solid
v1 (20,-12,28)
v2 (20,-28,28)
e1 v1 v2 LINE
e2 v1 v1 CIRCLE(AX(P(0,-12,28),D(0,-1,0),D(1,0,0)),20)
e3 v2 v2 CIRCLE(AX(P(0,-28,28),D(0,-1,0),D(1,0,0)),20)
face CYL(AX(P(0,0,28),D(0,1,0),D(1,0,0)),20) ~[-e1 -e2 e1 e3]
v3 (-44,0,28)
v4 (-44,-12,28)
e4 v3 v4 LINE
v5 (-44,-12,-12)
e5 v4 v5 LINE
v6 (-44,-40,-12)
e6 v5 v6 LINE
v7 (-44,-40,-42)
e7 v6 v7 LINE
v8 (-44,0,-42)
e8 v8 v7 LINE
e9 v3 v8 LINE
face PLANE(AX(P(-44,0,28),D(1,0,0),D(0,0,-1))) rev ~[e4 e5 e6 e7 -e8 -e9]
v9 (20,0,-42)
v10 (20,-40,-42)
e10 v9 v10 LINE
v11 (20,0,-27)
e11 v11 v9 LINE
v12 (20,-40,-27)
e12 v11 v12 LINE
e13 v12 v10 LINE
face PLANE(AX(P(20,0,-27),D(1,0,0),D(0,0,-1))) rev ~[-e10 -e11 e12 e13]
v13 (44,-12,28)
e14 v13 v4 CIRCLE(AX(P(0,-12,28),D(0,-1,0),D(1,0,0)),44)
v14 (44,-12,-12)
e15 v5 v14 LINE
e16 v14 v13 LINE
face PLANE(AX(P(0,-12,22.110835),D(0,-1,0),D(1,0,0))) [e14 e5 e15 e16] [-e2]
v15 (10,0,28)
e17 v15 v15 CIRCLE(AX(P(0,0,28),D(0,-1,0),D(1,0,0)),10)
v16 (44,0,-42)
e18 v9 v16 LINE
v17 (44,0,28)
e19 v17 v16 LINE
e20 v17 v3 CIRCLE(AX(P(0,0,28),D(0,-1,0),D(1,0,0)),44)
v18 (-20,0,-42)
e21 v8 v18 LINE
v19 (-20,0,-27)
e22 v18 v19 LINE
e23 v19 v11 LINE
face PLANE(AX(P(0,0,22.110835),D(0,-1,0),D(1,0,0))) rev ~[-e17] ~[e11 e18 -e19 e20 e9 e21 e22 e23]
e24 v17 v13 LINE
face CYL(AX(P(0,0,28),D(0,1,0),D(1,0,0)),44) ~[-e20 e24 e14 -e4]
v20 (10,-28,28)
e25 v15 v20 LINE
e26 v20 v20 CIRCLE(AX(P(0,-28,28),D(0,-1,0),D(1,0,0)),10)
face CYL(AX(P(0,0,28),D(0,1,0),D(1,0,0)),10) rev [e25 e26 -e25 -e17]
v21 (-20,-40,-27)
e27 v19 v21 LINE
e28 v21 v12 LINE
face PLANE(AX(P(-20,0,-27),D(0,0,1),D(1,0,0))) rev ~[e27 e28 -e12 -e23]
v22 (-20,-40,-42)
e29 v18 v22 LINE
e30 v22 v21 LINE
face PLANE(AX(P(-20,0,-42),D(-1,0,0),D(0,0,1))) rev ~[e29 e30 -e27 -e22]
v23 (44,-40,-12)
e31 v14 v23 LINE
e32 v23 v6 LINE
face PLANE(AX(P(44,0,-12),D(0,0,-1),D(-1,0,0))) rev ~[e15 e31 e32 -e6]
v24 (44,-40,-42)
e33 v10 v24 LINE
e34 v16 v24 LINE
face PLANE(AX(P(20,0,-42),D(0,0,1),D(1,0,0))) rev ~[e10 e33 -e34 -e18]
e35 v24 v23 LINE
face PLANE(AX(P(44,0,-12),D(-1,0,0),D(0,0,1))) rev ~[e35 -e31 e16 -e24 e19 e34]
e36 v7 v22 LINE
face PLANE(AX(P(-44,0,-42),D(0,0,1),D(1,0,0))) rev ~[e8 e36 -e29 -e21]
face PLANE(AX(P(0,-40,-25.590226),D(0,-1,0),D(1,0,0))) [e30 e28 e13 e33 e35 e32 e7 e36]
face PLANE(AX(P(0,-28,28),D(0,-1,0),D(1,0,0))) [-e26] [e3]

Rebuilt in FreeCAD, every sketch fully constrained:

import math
import FreeCAD as App
import Part
import Sketcher

V = App.Vector
Q = App.Units.Quantity


def add_polygon(sketch, points):
    """Adds a closed chain of lines whose ends are joined by coincident constraints."""
    first, n = sketch.GeometryCount, len(points)
    for a, b in zip(points, points[1:] + points[:1]):
        sketch.addGeometry(Part.LineSegment(App.Vector(*a, 0), App.Vector(*b, 0)), False)
    for i in range(n):
        sketch.addConstraint(Sketcher.Constraint("Coincident", first + i, 2, first + (i + 1) % n, 1))

doc = App.newDocument("Part")
body = doc.addObject("PartDesign::Body", "Body")

# Sketch on XZ plane
sketch1 = doc.addObject("Sketcher::SketchObject", "Sketch")
body.addObject(sketch1)
sketch1.AttachmentSupport = (doc.XZ_Plane, [""])
sketch1.MapMode = "FlatFace"
sketch1.addGeometry([
    Part.Circle(V(0, 28, 0), V(0, 0, 1), 20),
    Part.Circle(V(0, 28, 0), V(0, 0, 1), 10),
], False)
sketch1.addConstraint([
    Sketcher.Constraint("Coincident", 1, 3, 0, 3),
    Sketcher.Constraint("PointOnObject", 0, 3, -2),
    Sketcher.Constraint("Diameter", 0, Q("40 mm")),
    Sketcher.Constraint("Diameter", 1, Q("20 mm")),
    Sketcher.Constraint("DistanceY", -1, 1, 0, 3, Q("28 mm")),
])
pad1 = doc.addObject("PartDesign::Pad", "Pad")
body.addObject(pad1)
pad1.Profile = sketch1
pad1.Length = 28
body2 = doc.addObject("PartDesign::Body", "Body001")

# Sketch on XZ plane
sketch2 = doc.addObject("Sketcher::SketchObject", "Sketch001")
body2.addObject(sketch2)
sketch2.AttachmentSupport = (doc.getObject("XZ_Plane001"), [""])
sketch2.MapMode = "FlatFace"
add_polygon(sketch2, [(44, -12), (-44, -12), (-44, -42), (-20, -42), (-20, -27), (20, -27), (20, -42), (44, -42)])  # lines 0-7
sketch2.addConstraint([
    Sketcher.Constraint("Horizontal", 0),
    Sketcher.Constraint("Vertical", 1),
    Sketcher.Constraint("Horizontal", 2),
    Sketcher.Constraint("Vertical", 3),
    Sketcher.Constraint("Horizontal", 4),
    Sketcher.Constraint("Vertical", 5),
    Sketcher.Constraint("Horizontal", 6),
    Sketcher.Constraint("Vertical", 7),
    Sketcher.Constraint("Symmetric", 2, 2, 5, 2, -2),
    Sketcher.Constraint("Equal", 2, 6),
    Sketcher.Constraint("DistanceX", 0, 2, 0, 1, Q("88 mm")),
    Sketcher.Constraint("DistanceX", 2, 1, 2, 2, Q("24 mm")),
    Sketcher.Constraint("DistanceY", 1, 2, 1, 1, Q("30 mm")),
    Sketcher.Constraint("DistanceY", 3, 1, 3, 2, Q("15 mm")),
    Sketcher.Constraint("DistanceY", 0, 2, -1, 1, Q("12 mm")),
])
pad2 = doc.addObject("PartDesign::Pad", "Pad001")
body2.addObject(pad2)
pad2.Profile = sketch2
pad2.Length = 40
body.AllowCompound = True
doc.recompute()

boolean = doc.addObject("PartDesign::Boolean", "Boolean")
body.addObject(boolean)
boolean.Type = "Fuse"
boolean.addObjects([body2])

# Sketch on XZ plane
sketch3 = doc.addObject("Sketcher::SketchObject", "Sketch002")
body.addObject(sketch3)
sketch3.AttachmentSupport = (doc.XZ_Plane, [""])
sketch3.MapMode = "FlatFace"
sketch3.addGeometry([
    Part.LineSegment(V(-44, 28, 0), V(-44, -12, 0)),  # 0
    Part.LineSegment(V(-44, -12, 0), V(44, -12, 0)),  # 1
    Part.LineSegment(V(44, -12, 0), V(44, 28, 0)),  # 2
    Part.ArcOfCircle(Part.Circle(V(0, 28, 0), V(0, 0, 1), 44), math.radians(0), math.radians(180)),  # 3
    Part.Circle(V(0, 28, 0), V(0, 0, 1), 20),  # 4
], False)
sketch3.addConstraint([
    Sketcher.Constraint("Coincident", 0, 2, 1, 1),
    Sketcher.Constraint("Coincident", 1, 2, 2, 1),
    Sketcher.Constraint("Tangent", 2, 2, 3, 1),
    Sketcher.Constraint("Tangent", 3, 2, 0, 1),
    Sketcher.Constraint("Vertical", 0),
    Sketcher.Constraint("Horizontal", 1),
    Sketcher.Constraint("Vertical", 2),
    Sketcher.Constraint("Coincident", 4, 3, 3, 3),
    Sketcher.Constraint("PointOnObject", 3, 3, -2),
    Sketcher.Constraint("Diameter", 4, Q("40 mm")),
    Sketcher.Constraint("Radius", 3, Q("44 mm")),
    Sketcher.Constraint("DistanceY", 0, 2, 0, 1, Q("40 mm")),
    Sketcher.Constraint("DistanceY", -1, 1, 3, 3, Q("28 mm")),
])
pad3 = doc.addObject("PartDesign::Pad", "Pad002")
body.addObject(pad3)
pad3.Profile = sketch3
pad3.Length = 12

doc.recompute()
